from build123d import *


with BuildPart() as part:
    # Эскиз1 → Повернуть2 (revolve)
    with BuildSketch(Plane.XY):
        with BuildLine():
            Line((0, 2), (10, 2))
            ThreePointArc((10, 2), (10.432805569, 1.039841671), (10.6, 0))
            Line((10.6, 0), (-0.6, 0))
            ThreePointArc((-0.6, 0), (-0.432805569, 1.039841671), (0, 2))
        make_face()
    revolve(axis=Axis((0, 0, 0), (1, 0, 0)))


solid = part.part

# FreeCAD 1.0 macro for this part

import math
import FreeCAD as App
import Part
import Sketcher

doc = App.newDocument("Part")
body = doc.addObject("PartDesign::Body", "Body")

# Sketch on XY plane
sketch1 = body.newObject("Sketcher::SketchObject", "Sketch")
sketch1.AttachmentSupport = (doc.getObject("XY_Plane"), [""])
sketch1.MapMode = "FlatFace"
sketch1.addGeometry(Part.LineSegment(App.Vector(10, 2, 0), App.Vector(0, 2, 0)), False)
sketch1.addGeometry(Part.ArcOfCircle(Part.Circle(App.Vector(3.4, -0.1, 0), App.Vector(0, 0, 1), 4), math.radians(148), math.radians(178)), False)
sketch1.addGeometry(Part.LineSegment(App.Vector(-0.6, 0, 0), App.Vector(10.6, 0, 0)), False)
sketch1.addGeometry(Part.ArcOfCircle(Part.Circle(App.Vector(6.6, -0.1, 0), App.Vector(0, 0, 1), 4), math.radians(2), math.radians(32)), False)
sketch1.addConstraint(Sketcher.Constraint("Coincident", 0, 2, 1, 1))
sketch1.addConstraint(Sketcher.Constraint("Coincident", 1, 2, 2, 1))
sketch1.addConstraint(Sketcher.Constraint("Coincident", 2, 2, 3, 1))
sketch1.addConstraint(Sketcher.Constraint("Coincident", 3, 2, 0, 1))
sketch1.addConstraint(Sketcher.Constraint("Horizontal", 0))
sketch1.addConstraint(Sketcher.Constraint("Horizontal", 2))
sketch1.addConstraint(Sketcher.Constraint("Equal", 1, 3))
sketch1.addConstraint(Sketcher.Constraint("PointOnObject", 0, 2, -2))
sketch1.addConstraint(Sketcher.Constraint("PointOnObject", 1, 2, -1))
sketch1.addConstraint(Sketcher.Constraint("Horizontal", 1, 3, 3, 3))
sketch1.addConstraint(Sketcher.Constraint("Radius", 1, 4.0))
sketch1.addConstraint(Sketcher.Constraint("DistanceX", 0, 2, 0, 1, 10.0))
sketch1.addConstraint(Sketcher.Constraint("DistanceX", 2, 1, 2, 2, 11.2))
sketch1.addConstraint(Sketcher.Constraint("DistanceY", -1, 1, 0, 2, 2.0))
revolution = body.newObject("PartDesign::Revolution", "Revolution")
revolution.Profile = sketch1
revolution.ReferenceAxis = (sketch1, ["H_Axis"])
revolution.Angle = 360

doc.recompute()
